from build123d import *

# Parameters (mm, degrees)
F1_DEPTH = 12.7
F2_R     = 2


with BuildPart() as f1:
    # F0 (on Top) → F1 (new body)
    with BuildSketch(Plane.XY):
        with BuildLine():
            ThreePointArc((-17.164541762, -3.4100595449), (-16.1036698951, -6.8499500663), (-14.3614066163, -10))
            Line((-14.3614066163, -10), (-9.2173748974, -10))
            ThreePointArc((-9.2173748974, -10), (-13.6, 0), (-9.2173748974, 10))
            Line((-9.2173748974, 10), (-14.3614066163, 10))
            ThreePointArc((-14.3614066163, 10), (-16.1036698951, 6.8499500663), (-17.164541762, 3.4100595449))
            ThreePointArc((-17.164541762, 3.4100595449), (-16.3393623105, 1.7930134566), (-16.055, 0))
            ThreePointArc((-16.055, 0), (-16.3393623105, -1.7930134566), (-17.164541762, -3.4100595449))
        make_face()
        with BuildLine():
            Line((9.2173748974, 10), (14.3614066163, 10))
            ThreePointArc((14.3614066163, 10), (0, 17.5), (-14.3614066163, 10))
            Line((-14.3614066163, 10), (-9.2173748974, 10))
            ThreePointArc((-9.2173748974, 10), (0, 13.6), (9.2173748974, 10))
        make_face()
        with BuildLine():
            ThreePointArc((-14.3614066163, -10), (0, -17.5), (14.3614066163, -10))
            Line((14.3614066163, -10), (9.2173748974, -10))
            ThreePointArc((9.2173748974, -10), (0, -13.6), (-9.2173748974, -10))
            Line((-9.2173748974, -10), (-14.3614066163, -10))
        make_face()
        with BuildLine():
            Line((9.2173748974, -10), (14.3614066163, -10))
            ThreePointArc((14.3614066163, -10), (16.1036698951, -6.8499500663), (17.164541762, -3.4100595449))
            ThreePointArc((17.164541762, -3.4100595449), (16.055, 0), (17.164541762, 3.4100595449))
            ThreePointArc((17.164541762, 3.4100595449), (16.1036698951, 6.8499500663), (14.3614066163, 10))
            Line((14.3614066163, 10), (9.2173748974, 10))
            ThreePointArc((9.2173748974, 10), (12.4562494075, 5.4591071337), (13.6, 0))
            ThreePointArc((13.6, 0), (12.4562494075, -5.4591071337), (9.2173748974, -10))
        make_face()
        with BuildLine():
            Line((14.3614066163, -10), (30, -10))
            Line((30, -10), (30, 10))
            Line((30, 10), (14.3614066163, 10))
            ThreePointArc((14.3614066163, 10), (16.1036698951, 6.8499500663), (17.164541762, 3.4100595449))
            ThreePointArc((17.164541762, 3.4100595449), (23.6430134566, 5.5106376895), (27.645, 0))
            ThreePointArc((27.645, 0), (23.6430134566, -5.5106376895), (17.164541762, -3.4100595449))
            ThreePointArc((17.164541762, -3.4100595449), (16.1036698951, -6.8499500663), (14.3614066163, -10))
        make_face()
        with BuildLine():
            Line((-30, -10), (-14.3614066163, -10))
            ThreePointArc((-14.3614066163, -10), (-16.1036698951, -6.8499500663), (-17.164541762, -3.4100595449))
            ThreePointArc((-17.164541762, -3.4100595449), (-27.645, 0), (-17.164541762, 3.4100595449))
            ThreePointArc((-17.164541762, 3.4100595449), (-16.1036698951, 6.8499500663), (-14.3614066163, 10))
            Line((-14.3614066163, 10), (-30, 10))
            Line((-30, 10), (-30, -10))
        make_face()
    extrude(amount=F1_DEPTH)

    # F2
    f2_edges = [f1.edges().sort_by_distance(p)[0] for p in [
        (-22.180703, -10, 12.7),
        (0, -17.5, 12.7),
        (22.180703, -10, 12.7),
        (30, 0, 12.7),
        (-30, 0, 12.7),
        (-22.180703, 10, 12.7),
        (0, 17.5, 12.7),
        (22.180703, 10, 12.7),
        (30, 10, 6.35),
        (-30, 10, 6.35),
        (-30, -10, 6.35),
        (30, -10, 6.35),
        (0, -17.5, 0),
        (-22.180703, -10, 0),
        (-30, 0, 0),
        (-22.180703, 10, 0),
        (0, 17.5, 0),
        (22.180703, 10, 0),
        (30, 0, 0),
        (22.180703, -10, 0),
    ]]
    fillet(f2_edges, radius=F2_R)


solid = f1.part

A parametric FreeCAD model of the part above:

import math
import FreeCAD as App
import Part
import Sketcher
from FreeCAD import Vector


def edges_at(feature, points):
    """Names of the edges that pass closest to the given points."""
    edges = feature.Shape.Edges
    near = lambda p: min(range(len(edges)), key=lambda i: edges[i].distToShape(Part.Vertex(*p))[0])
    return sorted({f"Edge{near(p) + 1}" for p in points})

doc = App.newDocument("Part")
body = doc.addObject("PartDesign::Body", "Body")

# Sketch on XY plane
sketch1 = body.newObject("Sketcher::SketchObject", "Sketch")
sketch1.AttachmentSupport = (doc.getObject("XY_Plane"), [""])
sketch1.MapMode = "FlatFace"
sketch1.addGeometry([
    Part.ArcOfCircle(Part.Circle(Vector(0, 0, 0), Vector(0, 0, 1), 17.5), math.radians(-145), math.radians(-35)),  # 0
    Part.LineSegment(Vector(14.4, -10, 0), Vector(30, -10, 0)),  # 1
    Part.LineSegment(Vector(30, -10, 0), Vector(30, 10, 0)),  # 2
    Part.LineSegment(Vector(30, 10, 0), Vector(14.4, 10, 0)),  # 3
    Part.ArcOfCircle(Part.Circle(Vector(0, 0, 0), Vector(0, 0, 1), 17.5), math.radians(35), math.radians(145)),  # 4
    Part.LineSegment(Vector(-14.4, 10, 0), Vector(-30, 10, 0)),  # 5
    Part.LineSegment(Vector(-30, 10, 0), Vector(-30, -10, 0)),  # 6
    Part.LineSegment(Vector(-30, -10, 0), Vector(-14.4, -10, 0)),  # 7
    Part.ArcOfCircle(Part.Circle(Vector(-21.8, 0, 0), Vector(0, 0, 1), 5.8), math.radians(0), math.radians(36)),  # 8
    Part.ArcOfCircle(Part.Circle(Vector(-21.8, 0, 0), Vector(0, 0, 1), 5.8), math.radians(-36), math.radians(0)),  # 9
    Part.ArcOfCircle(Part.Circle(Vector(-21.9, 0, 0), Vector(0, 0, 1), 5.8), math.radians(36), math.radians(324)),  # 10
    Part.ArcOfCircle(Part.Circle(Vector(21.9, 0, 0), Vector(0, 0, 1), 5.8), math.radians(144), math.radians(216)),  # 11
    Part.ArcOfCircle(Part.Circle(Vector(21.9, 0, 0), Vector(0, 0, 1), 5.8), math.radians(0), math.radians(144)),  # 12
    Part.ArcOfCircle(Part.Circle(Vector(21.9, 0, 0), Vector(0, 0, 1), 5.8), math.radians(-144), math.radians(0)),  # 13
    Part.ArcOfCircle(Part.Circle(Vector(0, 0, 0), Vector(0, 0, 1), 13.6), math.radians(133), math.radians(227)),  # 14
    Part.ArcOfCircle(Part.Circle(Vector(0, 0, 0), Vector(0, 0, 1), 13.6), math.radians(0), math.radians(133)),  # 15
    Part.ArcOfCircle(Part.Circle(Vector(0, 0, 0), Vector(0, 0, 1), 13.6), math.radians(-133), math.radians(0)),  # 16
], False)
sketch1.addConstraint([
    Sketcher.Constraint("Coincident", 0, 2, 1, 1),
    Sketcher.Constraint("Coincident", 1, 2, 2, 1),
    Sketcher.Constraint("Coincident", 2, 2, 3, 1),
    Sketcher.Constraint("Coincident", 3, 2, 4, 1),
    Sketcher.Constraint("Coincident", 4, 2, 5, 1),
    Sketcher.Constraint("Coincident", 5, 2, 6, 1),
    Sketcher.Constraint("Coincident", 6, 2, 7, 1),
    Sketcher.Constraint("Coincident", 7, 2, 0, 1),
    Sketcher.Constraint("Tangent", 8, 1, 9, 2),
    Sketcher.Constraint("Tangent", 9, 1, 10, 2),
    Sketcher.Constraint("Tangent", 10, 1, 8, 2),
    Sketcher.Constraint("Tangent", 11, 1, 12, 2),
    Sketcher.Constraint("Tangent", 12, 1, 13, 2),
    Sketcher.Constraint("Tangent", 13, 1, 11, 2),
    Sketcher.Constraint("Tangent", 14, 1, 15, 2),
    Sketcher.Constraint("Tangent", 15, 1, 16, 2),
    Sketcher.Constraint("Tangent", 16, 1, 14, 2),
    Sketcher.Constraint("Horizontal", 1),
    Sketcher.Constraint("Vertical", 2),
    Sketcher.Constraint("Horizontal", 3),
    Sketcher.Constraint("Horizontal", 5),
    Sketcher.Constraint("Vertical", 6),
    Sketcher.Constraint("Horizontal", 7),
    Sketcher.Constraint("Coincident", 0, 3, -1, 1),
    Sketcher.Constraint("Coincident", 4, 3, -1, 1),
    Sketcher.Constraint("Coincident", 14, 3, -1, 1),
    Sketcher.Constraint("Equal", 0, 4),
    Sketcher.Constraint("Equal", 10, 11),
    Sketcher.Constraint("Symmetric", 8, 3, 11, 3, -1, 1),
    Sketcher.Constraint("Symmetric", 1, 2, 5, 2, -1, 1),
    Sketcher.Constraint("Symmetric", 10, 1, 11, 1, -2),
    Sketcher.Constraint("PointOnObject", 8, 1, -1),
    Sketcher.Constraint("PointOnObject", 12, 1, -1),
    Sketcher.Constraint("PointOnObject", 15, 1, -1),
    Sketcher.Constraint("Horizontal", 3, 2, 4, 2),
    Sketcher.Constraint("Horizontal", 1, 2, 6, 2),
    Sketcher.Constraint("Horizontal", 9, 1, 13, 1),
    Sketcher.Constraint("Horizontal", 5, 2, 14, 1),
    Sketcher.Constraint("Horizontal", 7, 2, 16, 1),
    Sketcher.Constraint("Vertical", 9, 1, 10, 1),
    Sketcher.Constraint("Radius", 0, 17.5),
    Sketcher.Constraint("Radius", 14, 13.6),
    Sketcher.Constraint("DistanceY", 2, 1, 2, 2, 20.0),
    Sketcher.Constraint("DistanceX", -1, 1, 1, 2, 30.0),
    Sketcher.Constraint("Radius", 8, 5.795),
    Sketcher.Constraint("DistanceX", 8, 3, 11, 3, 43.7),
    Sketcher.Constraint("DistanceX", 9, 1, -1, 1, 17.164542),
])
pad1 = body.newObject("PartDesign::Pad", "Pad")
pad1.Profile = sketch1
pad1.Length = 12.7
doc.recompute()

fillet = body.newObject("PartDesign::Fillet", "Fillet")
fillet.Base = (pad1, edges_at(pad1, [
    (-22.181, -10, 12.7),
    (0, -17.5, 12.7),
    (22.181, -10, 12.7),
    (30, 0, 12.7),
    (-30, 0, 12.7),
    (-22.181, 10, 12.7),
    (0, 17.5, 12.7),
    (22.181, 10, 12.7),
    (30, 10, 6.35),
    (-30, 10, 6.35),
    (-30, -10, 6.35),
    (30, -10, 6.35),
    (0, -17.5, 0),
    (-22.181, -10, 0),
    (-30, 0, 0),
    (-22.181, 10, 0),
    (0, 17.5, 0),
    (22.181, 10, 0),
    (30, 0, 0),
    (22.181, -10, 0),
]))
fillet.Radius = 2

doc.recompute()
